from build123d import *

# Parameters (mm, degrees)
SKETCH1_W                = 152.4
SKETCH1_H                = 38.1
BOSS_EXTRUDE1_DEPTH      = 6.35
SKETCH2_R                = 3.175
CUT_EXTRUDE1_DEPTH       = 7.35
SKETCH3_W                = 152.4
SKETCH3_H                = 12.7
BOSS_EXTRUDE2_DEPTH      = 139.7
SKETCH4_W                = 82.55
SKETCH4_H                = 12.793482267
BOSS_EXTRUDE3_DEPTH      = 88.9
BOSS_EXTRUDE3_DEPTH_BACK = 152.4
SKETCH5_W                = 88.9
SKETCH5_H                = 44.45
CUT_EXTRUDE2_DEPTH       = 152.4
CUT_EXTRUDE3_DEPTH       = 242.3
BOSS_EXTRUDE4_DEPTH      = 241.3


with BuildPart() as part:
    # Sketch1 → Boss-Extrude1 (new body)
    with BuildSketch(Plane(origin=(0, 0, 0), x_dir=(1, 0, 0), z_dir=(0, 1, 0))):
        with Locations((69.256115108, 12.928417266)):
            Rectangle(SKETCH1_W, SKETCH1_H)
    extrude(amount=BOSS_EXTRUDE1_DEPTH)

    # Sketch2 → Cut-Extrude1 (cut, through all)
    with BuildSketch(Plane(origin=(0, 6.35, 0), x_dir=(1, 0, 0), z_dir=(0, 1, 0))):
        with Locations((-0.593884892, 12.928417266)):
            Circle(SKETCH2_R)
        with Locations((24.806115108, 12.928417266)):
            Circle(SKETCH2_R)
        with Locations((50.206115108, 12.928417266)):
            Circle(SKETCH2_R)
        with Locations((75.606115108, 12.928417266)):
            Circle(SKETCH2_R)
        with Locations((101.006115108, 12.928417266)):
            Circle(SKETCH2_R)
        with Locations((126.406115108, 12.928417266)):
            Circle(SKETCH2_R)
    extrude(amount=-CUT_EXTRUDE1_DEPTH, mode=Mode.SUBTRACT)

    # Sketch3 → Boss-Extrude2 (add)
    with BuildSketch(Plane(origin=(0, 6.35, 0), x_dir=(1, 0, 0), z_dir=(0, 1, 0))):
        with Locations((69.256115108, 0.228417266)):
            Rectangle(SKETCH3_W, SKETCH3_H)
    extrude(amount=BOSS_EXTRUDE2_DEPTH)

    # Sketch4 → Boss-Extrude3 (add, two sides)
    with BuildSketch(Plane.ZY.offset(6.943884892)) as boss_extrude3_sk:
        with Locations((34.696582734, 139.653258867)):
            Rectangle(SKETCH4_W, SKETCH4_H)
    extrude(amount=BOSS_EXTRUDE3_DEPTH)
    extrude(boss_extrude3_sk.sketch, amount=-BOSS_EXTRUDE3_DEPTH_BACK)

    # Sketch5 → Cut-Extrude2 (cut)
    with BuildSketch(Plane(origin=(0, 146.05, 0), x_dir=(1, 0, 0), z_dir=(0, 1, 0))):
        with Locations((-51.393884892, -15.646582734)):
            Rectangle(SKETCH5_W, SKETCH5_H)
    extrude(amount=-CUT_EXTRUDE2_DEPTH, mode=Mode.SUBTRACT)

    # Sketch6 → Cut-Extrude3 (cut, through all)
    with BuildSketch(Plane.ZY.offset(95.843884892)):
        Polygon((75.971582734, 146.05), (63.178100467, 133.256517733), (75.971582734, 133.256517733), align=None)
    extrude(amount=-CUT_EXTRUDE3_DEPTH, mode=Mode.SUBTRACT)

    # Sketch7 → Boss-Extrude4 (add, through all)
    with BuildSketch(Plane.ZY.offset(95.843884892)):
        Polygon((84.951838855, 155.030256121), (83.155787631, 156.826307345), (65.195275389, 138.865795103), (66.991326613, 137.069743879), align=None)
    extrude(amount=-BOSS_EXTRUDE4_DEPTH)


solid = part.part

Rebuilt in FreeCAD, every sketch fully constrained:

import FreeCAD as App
import Part
import Sketcher

V = App.Vector
Q = App.Units.Quantity


def add_polygon(sketch, points):
    """Adds a closed chain of lines whose ends are joined by coincident constraints."""
    first, n = sketch.GeometryCount, len(points)
    for a, b in zip(points, points[1:] + points[:1]):
        sketch.addGeometry(Part.LineSegment(App.Vector(*a, 0), App.Vector(*b, 0)), False)
    for i in range(n):
        sketch.addConstraint(Sketcher.Constraint("Coincident", first + i, 2, first + (i + 1) % n, 1))

doc = App.newDocument("Part")
params = doc.addObject("Spreadsheet::Sheet", "Params")
for row, (alias, value) in enumerate([
    ("sketch1_width", "6 in"),
    ("sketch1_height", "1.5 in"),
    ("pad1_length", "0.25 in"),
    ("sketch2_diameter", "0.25 in"),
    ("sketch3_width", "6 in"),
    ("sketch3_height", "0.5 in"),
    ("pad2_length", "5.5 in"),
    ("sketch4_height", "3.25 in"),
    ("pad3_length", "3.5 in"),
    ("pad3_length2", "6 in"),
    ("sketch5_width", "3.5 in"),
    ("sketch5_height", "1.75 in"),
    ("pocket2_length", "6 in"),
    ("sketch7_length", "1 in"),
    ("sketch7_length2", "0.1 in"),
    ("pad4_length", "9.5 in"),
], start=1):
    params.set(f"A{row}", alias)
    params.set(f"B{row}", "=" + value)
    params.setAlias(f"B{row}", alias)

body = doc.addObject("PartDesign::Body", "Body")

sketch1 = body.newObject("Sketcher::SketchObject", "Sketch")
sketch1.AttachmentSupport = (doc.getObject("XZ_Plane"), [""])
sketch1.MapMode = "FlatFace"
add_polygon(sketch1, [(-6.943885, -31.978417), (-6.943885, 6.121583), (145.456115, 6.121583), (145.456115, -31.978417)])
sketch1.addConstraint(Sketcher.Constraint("Vertical", 0))
sketch1.addConstraint(Sketcher.Constraint("Horizontal", 1))
sketch1.addConstraint(Sketcher.Constraint("Vertical", 2))
sketch1.addConstraint(Sketcher.Constraint("Horizontal", 3))
sketch1.addConstraint(Sketcher.Constraint("DistanceX", 1, 1, 1, 2, Q("6 in")))
sketch1.addConstraint(Sketcher.Constraint("DistanceY", 0, 1, 0, 2, Q("1.5 in")))
sketch1.addConstraint(Sketcher.Constraint("DistanceX", 0, 2, -1, 1, Q("6.943885 mm")))
sketch1.addConstraint(Sketcher.Constraint("DistanceY", -1, 1, 0, 2, Q("6.121583 mm")))
sketch1.setExpression("Constraints[8]", "Params.sketch1_width")
sketch1.setExpression("Constraints[9]", "Params.sketch1_height")
pad1 = body.newObject("PartDesign::Pad", "Pad")
pad1.Profile = sketch1
pad1.setExpression("Length", "Params.pad1_length")
pad1.Reversed = True

sketch2 = body.newObject("Sketcher::SketchObject", "Sketch001")
sketch2.AttachmentSupport = (doc.getObject("XZ_Plane"), [""])
sketch2.MapMode = "FlatFace"
sketch2.AttachmentOffset = App.Placement(V(0, 0, -0.25 * 25.4), App.Rotation())
sketch2.addGeometry(Part.Circle(V(-0.593885, -12.928417, 0), V(0, 0, 1), 3.175), False)
sketch2.addGeometry(Part.Circle(V(24.806115, -12.928417, 0), V(0, 0, 1), 3.175), False)
sketch2.addGeometry(Part.Circle(V(50.206115, -12.928417, 0), V(0, 0, 1), 3.175), False)
sketch2.addGeometry(Part.Circle(V(75.606115, -12.928417, 0), V(0, 0, 1), 3.175), False)
sketch2.addGeometry(Part.Circle(V(101.006115, -12.928417, 0), V(0, 0, 1), 3.175), False)
sketch2.addGeometry(Part.Circle(V(126.406115, -12.928417, 0), V(0, 0, 1), 3.175), False)
sketch2.addConstraint(Sketcher.Constraint("Equal", 0, 1))
sketch2.addConstraint(Sketcher.Constraint("Equal", 1, 2))
sketch2.addConstraint(Sketcher.Constraint("Equal", 2, 3))
sketch2.addConstraint(Sketcher.Constraint("Equal", 3, 4))
sketch2.addConstraint(Sketcher.Constraint("Equal", 4, 5))
sketch2.addConstraint(Sketcher.Constraint("Horizontal", 0, 3, 1, 3))
sketch2.addConstraint(Sketcher.Constraint("Horizontal", 1, 3, 2, 3))
sketch2.addConstraint(Sketcher.Constraint("Horizontal", 2, 3, 3, 3))
sketch2.addConstraint(Sketcher.Constraint("Horizontal", 3, 3, 4, 3))
sketch2.addConstraint(Sketcher.Constraint("Horizontal", 4, 3, 5, 3))
sketch2.addConstraint(Sketcher.Constraint("Diameter", 0, Q("0.25 in")))
sketch2.addConstraint(Sketcher.Constraint("DistanceX", 0, 3, 1, 3, Q("1 in")))
sketch2.addConstraint(Sketcher.Constraint("DistanceX", 1, 3, 2, 3, Q("1 in")))
sketch2.addConstraint(Sketcher.Constraint("DistanceX", 2, 3, 3, 3, Q("1 in")))
sketch2.addConstraint(Sketcher.Constraint("DistanceX", 3, 3, 4, 3, Q("1 in")))
sketch2.addConstraint(Sketcher.Constraint("DistanceX", 4, 3, 5, 3, Q("1 in")))
sketch2.addConstraint(Sketcher.Constraint("DistanceX", 0, 3, -1, 1, Q("0.593885 mm")))
sketch2.addConstraint(Sketcher.Constraint("DistanceY", 0, 3, -1, 1, Q("12.928417 mm")))
sketch2.setExpression("Constraints[10]", "Params.sketch2_diameter")
pocket1 = body.newObject("PartDesign::Pocket", "Pocket")
pocket1.Profile = sketch2
pocket1.Type = "ThroughAll"
pocket1.Reversed = True

sketch3 = body.newObject("Sketcher::SketchObject", "Sketch002")
sketch3.AttachmentSupport = (doc.getObject("XZ_Plane"), [""])
sketch3.MapMode = "FlatFace"
sketch3.AttachmentOffset = App.Placement(V(0, 0, -0.25 * 25.4), App.Rotation())
add_polygon(sketch3, [(-6.943885, -6.578417), (-6.943885, 6.121583), (145.456115, 6.121583), (145.456115, -6.578417)])
sketch3.addConstraint(Sketcher.Constraint("Vertical", 0))
sketch3.addConstraint(Sketcher.Constraint("Horizontal", 1))
sketch3.addConstraint(Sketcher.Constraint("Vertical", 2))
sketch3.addConstraint(Sketcher.Constraint("Horizontal", 3))
sketch3.addConstraint(Sketcher.Constraint("DistanceX", 1, 1, 1, 2, Q("6 in")))
sketch3.addConstraint(Sketcher.Constraint("DistanceY", 0, 1, 0, 2, Q("0.5 in")))
sketch3.addConstraint(Sketcher.Constraint("DistanceX", 0, 2, -1, 1, Q("6.943885 mm")))
sketch3.addConstraint(Sketcher.Constraint("DistanceY", -1, 1, 0, 2, Q("6.121583 mm")))
sketch3.setExpression("Constraints[8]", "Params.sketch3_width")
sketch3.setExpression("Constraints[9]", "Params.sketch3_height")
pad2 = body.newObject("PartDesign::Pad", "Pad001")
pad2.Profile = sketch3
pad2.setExpression("Length", "Params.pad2_length")
pad2.Reversed = True

sketch4 = body.newObject("Sketcher::SketchObject", "Sketch003")
sketch4.AttachmentSupport = (doc.getObject("YZ_Plane"), [""])
sketch4.MapMode = "FlatFace"
sketch4.AttachmentOffset = App.Placement(V(0, 0, -6.943885), App.Rotation())
add_polygon(sketch4, [(146.05, -6.578417), (133.256518, -6.578417), (133.256518, 75.971583), (146.05, 75.971583)])
sketch4.addConstraint(Sketcher.Constraint("Horizontal", 0))
sketch4.addConstraint(Sketcher.Constraint("Vertical", 1))
sketch4.addConstraint(Sketcher.Constraint("Horizontal", 2))
sketch4.addConstraint(Sketcher.Constraint("Vertical", 3))
sketch4.addConstraint(Sketcher.Constraint("DistanceY", 1, 1, 1, 2, Q("3.25 in")))
sketch4.addConstraint(Sketcher.Constraint("DistanceX", -1, 1, 2, 2, Q("5.75 in")))
sketch4.addConstraint(Sketcher.Constraint("DistanceX", 0, 2, 0, 1, Q("12.793482 mm")))
sketch4.addConstraint(Sketcher.Constraint("DistanceY", 0, 2, -1, 1, Q("6.578417 mm")))
sketch4.setExpression("Constraints[8]", "Params.sketch4_height")
pad3 = body.newObject("PartDesign::Pad", "Pad002")
pad3.Profile = sketch4
pad3.Type = "TwoLengths"
pad3.setExpression("Length", "Params.pad3_length")
pad3.setExpression("Length2", "Params.pad3_length2")
pad3.Reversed = True

sketch5 = body.newObject("Sketcher::SketchObject", "Sketch004")
sketch5.AttachmentSupport = (doc.getObject("XZ_Plane"), [""])
sketch5.MapMode = "FlatFace"
sketch5.AttachmentOffset = App.Placement(V(0, 0, -5.75 * 25.4), App.Rotation())
add_polygon(sketch5, [(-95.843885, -6.578417), (-95.843885, 37.871583), (-6.943885, 37.871583), (-6.943885, -6.578417)])
sketch5.addConstraint(Sketcher.Constraint("Vertical", 0))
sketch5.addConstraint(Sketcher.Constraint("Horizontal", 1))
sketch5.addConstraint(Sketcher.Constraint("Vertical", 2))
sketch5.addConstraint(Sketcher.Constraint("Horizontal", 3))
sketch5.addConstraint(Sketcher.Constraint("DistanceX", 1, 1, 1, 2, Q("3.5 in")))
sketch5.addConstraint(Sketcher.Constraint("DistanceY", 0, 1, 0, 2, Q("1.75 in")))
sketch5.addConstraint(Sketcher.Constraint("DistanceX", 0, 2, -1, 1, Q("95.843885 mm")))
sketch5.addConstraint(Sketcher.Constraint("DistanceY", -1, 1, 0, 2, Q("37.871583 mm")))
sketch5.setExpression("Constraints[8]", "Params.sketch5_width")
sketch5.setExpression("Constraints[9]", "Params.sketch5_height")
pocket2 = body.newObject("PartDesign::Pocket", "Pocket001")
pocket2.Profile = sketch5
pocket2.setExpression("Length", "Params.pocket2_length")
pocket2.Reversed = True

sketch6 = body.newObject("Sketcher::SketchObject", "Sketch005")
sketch6.AttachmentSupport = (doc.getObject("YZ_Plane"), [""])
sketch6.MapMode = "FlatFace"
sketch6.AttachmentOffset = App.Placement(V(0, 0, -95.843885), App.Rotation())
add_polygon(sketch6, [(146.05, 75.971583), (133.256518, 63.1781), (133.256518, 75.971583)])
sketch6.addConstraint(Sketcher.Constraint("Vertical", 1))
sketch6.addConstraint(Sketcher.Constraint("Horizontal", 2))
sketch6.addConstraint(Sketcher.Constraint("Equal", 2, 1))
sketch6.addConstraint(Sketcher.Constraint("DistanceX", -1, 1, 2, 2, Q("5.75 in")))
sketch6.addConstraint(Sketcher.Constraint("DistanceY", -1, 1, 0, 2, Q("63.1781 mm")))
sketch6.addConstraint(Sketcher.Constraint("DistanceX", 2, 1, 2, 2, Q("12.793482 mm")))
pocket3 = body.newObject("PartDesign::Pocket", "Pocket002")
pocket3.Profile = sketch6
pocket3.Type = "ThroughAll"
pocket3.Reversed = True

sketch7 = body.newObject("Sketcher::SketchObject", "Sketch006")
sketch7.AttachmentSupport = (doc.getObject("YZ_Plane"), [""])
sketch7.MapMode = "FlatFace"
sketch7.AttachmentOffset = App.Placement(V(0, 0, -95.843885), App.Rotation())
add_polygon(sketch7, [(155.030256, 84.951839), (156.826307, 83.155788), (138.865795, 65.195275), (137.069744, 66.991327)])
sketch7.addConstraint(Sketcher.Constraint("Perpendicular", 0, 1))
sketch7.addConstraint(Sketcher.Constraint("Perpendicular", 1, 2))
sketch7.addConstraint(Sketcher.Constraint("Perpendicular", 2, 3))
sketch7.addConstraint(Sketcher.Constraint("Distance", 1, Q("1 in")))
sketch7.addConstraint(Sketcher.Constraint("Angle", 0, Q("-45 deg")))
sketch7.addConstraint(Sketcher.Constraint("Distance", 0, Q("0.1 in")))
sketch7.addConstraint(Sketcher.Constraint("DistanceY", -1, 1, 3, 2, Q("84.951839 mm")))
sketch7.addConstraint(Sketcher.Constraint("DistanceX", -1, 1, 0, 2, Q("156.826307 mm")))
sketch7.setExpression("Constraints[7]", "Params.sketch7_length")
sketch7.setExpression("Constraints[9]", "Params.sketch7_length2")
pad4 = body.newObject("PartDesign::Pad", "Pad003")
pad4.Profile = sketch7
pad4.setExpression("Length", "Params.pad4_length")

doc.recompute()
